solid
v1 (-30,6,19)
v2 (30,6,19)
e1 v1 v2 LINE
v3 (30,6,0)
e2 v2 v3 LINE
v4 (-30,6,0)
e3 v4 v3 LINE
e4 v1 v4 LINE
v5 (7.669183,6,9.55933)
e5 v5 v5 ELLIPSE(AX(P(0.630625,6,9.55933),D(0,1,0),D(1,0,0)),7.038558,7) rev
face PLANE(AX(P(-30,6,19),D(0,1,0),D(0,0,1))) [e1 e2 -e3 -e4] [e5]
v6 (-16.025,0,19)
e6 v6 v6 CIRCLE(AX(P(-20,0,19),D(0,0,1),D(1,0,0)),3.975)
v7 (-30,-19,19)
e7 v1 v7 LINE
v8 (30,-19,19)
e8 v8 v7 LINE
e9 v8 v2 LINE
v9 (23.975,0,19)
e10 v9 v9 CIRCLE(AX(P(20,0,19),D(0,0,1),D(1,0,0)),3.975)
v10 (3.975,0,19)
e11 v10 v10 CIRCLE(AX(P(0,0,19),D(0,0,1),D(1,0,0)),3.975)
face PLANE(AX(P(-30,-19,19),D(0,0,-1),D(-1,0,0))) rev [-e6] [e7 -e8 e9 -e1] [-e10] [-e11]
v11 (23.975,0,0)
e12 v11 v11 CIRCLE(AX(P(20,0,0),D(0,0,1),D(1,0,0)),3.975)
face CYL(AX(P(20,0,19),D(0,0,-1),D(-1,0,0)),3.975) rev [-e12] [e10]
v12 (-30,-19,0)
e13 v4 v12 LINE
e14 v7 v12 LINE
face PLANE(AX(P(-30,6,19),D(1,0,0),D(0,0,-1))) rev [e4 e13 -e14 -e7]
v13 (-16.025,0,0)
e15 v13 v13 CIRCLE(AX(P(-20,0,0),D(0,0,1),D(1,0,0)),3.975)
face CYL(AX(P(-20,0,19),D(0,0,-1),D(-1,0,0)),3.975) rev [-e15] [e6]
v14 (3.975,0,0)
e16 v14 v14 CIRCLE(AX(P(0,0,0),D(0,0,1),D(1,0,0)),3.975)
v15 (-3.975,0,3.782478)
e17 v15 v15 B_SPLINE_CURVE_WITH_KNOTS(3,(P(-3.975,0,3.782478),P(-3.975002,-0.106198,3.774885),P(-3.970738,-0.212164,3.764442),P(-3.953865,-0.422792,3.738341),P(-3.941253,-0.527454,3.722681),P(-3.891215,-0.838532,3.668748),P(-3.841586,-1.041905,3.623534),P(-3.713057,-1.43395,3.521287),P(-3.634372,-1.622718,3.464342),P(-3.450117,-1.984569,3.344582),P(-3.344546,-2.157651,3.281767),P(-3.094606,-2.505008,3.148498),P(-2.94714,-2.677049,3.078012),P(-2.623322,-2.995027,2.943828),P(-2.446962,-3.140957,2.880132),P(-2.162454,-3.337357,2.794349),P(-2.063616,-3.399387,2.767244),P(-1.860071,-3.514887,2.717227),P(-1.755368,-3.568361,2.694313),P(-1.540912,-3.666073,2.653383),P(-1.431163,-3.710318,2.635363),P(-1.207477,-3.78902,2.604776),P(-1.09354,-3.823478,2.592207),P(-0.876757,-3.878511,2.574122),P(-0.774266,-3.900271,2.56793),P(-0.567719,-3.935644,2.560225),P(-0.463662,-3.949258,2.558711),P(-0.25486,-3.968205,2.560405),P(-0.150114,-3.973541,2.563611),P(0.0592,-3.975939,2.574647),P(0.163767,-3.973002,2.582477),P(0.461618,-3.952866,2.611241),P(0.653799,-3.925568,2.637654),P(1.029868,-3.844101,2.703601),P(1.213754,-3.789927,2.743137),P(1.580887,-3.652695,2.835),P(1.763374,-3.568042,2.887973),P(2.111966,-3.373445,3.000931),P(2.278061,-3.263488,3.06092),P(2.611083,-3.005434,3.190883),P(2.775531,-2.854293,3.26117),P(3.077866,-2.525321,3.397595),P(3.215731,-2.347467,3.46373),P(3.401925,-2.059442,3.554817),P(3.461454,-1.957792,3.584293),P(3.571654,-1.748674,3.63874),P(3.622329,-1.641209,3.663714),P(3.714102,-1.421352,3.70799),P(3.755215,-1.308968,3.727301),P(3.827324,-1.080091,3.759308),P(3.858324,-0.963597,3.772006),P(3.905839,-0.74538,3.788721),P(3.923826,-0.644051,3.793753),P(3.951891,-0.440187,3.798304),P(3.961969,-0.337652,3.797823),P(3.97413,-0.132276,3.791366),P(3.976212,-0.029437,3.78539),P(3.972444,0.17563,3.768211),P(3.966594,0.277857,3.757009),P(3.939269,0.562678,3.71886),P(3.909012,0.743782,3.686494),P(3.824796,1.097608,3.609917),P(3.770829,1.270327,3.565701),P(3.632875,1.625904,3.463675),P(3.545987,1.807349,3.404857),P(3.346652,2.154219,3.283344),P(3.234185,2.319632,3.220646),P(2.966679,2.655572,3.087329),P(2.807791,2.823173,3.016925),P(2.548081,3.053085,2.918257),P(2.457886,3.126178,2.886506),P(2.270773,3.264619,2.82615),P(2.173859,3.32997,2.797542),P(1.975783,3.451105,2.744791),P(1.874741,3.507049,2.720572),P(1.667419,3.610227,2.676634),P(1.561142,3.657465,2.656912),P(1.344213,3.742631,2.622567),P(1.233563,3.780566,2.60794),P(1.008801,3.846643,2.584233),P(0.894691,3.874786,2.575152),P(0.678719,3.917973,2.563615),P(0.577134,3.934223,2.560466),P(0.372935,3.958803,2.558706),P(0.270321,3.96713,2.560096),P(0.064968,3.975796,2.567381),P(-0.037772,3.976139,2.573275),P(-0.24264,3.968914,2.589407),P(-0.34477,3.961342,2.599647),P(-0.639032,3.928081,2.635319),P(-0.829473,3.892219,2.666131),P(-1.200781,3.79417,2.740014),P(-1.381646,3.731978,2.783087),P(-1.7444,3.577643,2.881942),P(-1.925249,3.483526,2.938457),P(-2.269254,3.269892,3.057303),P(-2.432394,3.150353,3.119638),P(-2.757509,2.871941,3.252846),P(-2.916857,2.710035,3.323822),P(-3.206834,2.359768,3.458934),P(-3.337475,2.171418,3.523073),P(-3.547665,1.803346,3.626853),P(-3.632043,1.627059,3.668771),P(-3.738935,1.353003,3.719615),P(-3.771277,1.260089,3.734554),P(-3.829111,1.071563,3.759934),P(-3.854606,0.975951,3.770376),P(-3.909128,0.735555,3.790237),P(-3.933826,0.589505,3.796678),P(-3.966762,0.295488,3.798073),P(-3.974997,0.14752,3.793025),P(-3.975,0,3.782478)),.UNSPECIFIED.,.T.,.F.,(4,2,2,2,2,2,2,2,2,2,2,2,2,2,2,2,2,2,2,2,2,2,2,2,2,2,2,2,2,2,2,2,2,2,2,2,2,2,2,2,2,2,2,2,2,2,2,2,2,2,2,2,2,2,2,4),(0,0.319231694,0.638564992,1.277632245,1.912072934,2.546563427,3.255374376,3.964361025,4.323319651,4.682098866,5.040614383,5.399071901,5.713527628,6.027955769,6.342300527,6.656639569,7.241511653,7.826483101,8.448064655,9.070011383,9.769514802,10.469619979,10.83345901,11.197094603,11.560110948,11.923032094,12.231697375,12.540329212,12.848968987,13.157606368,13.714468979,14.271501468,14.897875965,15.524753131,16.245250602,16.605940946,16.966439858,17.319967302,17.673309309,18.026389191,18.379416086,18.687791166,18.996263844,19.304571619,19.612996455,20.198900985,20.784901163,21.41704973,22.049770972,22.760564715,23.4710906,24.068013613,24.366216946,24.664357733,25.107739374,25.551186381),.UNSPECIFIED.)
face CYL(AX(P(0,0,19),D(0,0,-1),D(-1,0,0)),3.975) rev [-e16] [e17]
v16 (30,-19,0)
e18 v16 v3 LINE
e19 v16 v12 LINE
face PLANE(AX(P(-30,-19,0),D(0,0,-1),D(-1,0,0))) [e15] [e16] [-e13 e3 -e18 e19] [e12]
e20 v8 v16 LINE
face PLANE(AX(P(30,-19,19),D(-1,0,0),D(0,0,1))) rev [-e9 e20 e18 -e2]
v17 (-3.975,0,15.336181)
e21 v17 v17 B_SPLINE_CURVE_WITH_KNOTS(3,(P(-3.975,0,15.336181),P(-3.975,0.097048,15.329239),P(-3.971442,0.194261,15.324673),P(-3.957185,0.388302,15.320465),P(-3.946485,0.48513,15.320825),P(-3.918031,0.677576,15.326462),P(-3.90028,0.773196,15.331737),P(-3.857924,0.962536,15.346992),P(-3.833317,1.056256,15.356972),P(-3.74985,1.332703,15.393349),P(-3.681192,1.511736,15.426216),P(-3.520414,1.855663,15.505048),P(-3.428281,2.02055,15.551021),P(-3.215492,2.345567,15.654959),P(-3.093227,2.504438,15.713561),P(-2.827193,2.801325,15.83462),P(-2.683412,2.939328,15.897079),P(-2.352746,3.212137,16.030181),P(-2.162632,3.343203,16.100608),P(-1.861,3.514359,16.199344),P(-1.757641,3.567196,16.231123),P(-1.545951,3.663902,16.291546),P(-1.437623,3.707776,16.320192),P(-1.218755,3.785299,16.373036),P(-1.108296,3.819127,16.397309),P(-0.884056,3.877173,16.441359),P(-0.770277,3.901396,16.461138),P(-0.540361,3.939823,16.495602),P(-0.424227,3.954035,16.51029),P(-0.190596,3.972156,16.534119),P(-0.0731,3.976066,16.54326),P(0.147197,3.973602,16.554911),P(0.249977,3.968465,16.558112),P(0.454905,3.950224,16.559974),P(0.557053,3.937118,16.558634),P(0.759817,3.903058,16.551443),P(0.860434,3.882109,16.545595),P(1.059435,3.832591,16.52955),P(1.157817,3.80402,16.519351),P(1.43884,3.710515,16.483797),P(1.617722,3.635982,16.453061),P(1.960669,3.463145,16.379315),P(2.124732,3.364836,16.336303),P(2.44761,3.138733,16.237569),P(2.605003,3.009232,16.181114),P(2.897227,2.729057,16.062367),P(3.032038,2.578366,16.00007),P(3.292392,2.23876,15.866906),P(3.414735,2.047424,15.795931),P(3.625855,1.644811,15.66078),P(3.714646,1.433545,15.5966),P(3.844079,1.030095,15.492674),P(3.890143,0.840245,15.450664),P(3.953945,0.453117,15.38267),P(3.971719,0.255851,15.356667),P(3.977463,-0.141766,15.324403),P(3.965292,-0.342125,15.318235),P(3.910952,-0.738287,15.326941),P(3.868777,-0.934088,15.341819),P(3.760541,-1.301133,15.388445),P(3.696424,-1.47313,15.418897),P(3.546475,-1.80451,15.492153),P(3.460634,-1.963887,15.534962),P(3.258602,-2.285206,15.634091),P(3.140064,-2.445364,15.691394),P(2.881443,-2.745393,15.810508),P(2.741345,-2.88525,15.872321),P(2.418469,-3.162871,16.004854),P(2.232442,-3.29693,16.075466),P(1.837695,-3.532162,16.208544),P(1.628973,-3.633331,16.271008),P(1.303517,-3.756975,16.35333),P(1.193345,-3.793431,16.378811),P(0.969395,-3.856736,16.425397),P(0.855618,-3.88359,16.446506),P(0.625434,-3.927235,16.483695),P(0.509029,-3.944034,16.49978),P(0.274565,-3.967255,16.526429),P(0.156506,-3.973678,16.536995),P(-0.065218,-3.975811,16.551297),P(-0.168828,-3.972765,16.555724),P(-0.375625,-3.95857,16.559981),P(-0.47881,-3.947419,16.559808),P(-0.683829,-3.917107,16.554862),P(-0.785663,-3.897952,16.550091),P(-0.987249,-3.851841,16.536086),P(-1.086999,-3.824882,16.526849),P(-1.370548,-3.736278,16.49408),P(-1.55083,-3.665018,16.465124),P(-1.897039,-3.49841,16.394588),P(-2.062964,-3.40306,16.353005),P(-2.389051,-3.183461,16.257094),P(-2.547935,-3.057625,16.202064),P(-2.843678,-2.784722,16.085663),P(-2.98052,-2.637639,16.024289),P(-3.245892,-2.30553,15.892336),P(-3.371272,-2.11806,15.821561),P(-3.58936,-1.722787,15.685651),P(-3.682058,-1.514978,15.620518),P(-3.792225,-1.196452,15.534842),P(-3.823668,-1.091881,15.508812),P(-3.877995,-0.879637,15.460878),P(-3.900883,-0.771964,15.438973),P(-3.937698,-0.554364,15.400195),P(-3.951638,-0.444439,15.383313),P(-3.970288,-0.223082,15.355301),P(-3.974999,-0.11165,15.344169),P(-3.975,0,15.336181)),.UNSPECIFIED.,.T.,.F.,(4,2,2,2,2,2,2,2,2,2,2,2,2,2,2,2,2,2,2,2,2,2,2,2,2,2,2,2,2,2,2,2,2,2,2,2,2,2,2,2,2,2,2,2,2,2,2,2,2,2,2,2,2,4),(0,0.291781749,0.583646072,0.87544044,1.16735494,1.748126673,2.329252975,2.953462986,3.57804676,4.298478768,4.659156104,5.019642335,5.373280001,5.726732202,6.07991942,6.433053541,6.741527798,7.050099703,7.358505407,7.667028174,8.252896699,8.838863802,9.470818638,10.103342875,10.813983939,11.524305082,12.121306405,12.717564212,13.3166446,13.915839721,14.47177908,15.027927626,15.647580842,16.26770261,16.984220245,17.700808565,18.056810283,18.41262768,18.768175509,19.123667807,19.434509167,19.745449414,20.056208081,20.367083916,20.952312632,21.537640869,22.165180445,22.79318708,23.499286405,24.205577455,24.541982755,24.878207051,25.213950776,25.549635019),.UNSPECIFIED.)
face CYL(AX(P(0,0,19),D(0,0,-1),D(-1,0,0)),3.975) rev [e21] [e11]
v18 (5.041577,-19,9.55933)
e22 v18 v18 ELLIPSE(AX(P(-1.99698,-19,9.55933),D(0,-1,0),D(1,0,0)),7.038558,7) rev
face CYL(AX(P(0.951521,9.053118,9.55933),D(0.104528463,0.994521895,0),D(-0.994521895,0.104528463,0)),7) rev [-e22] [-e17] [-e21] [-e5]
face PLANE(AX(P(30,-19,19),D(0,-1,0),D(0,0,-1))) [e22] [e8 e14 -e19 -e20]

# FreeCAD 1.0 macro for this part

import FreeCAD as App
import Part
import Sketcher

doc = App.newDocument("Part")
body = doc.addObject("PartDesign::Body", "Body")

# Sketch on XY plane
sketch1 = doc.addObject("Sketcher::SketchObject", "Sketch")
body.addObject(sketch1)
sketch1.AttachmentSupport = (doc.XY_Plane, [""])
sketch1.MapMode = "FlatFace"
sketch1.addGeometry(Part.LineSegment(App.Vector(-30, 6, 0), App.Vector(-30, -19, 0)), False)
sketch1.addGeometry(Part.LineSegment(App.Vector(-30, -19, 0), App.Vector(30, -19, 0)), False)
sketch1.addGeometry(Part.LineSegment(App.Vector(30, -19, 0), App.Vector(30, 6, 0)), False)
sketch1.addGeometry(Part.LineSegment(App.Vector(30, 6, 0), App.Vector(-30, 6, 0)), False)
sketch1.addGeometry(Part.Circle(App.Vector(-20, 0, 0), App.Vector(0, 0, 1), 4), False)
sketch1.addGeometry(Part.Circle(App.Vector(0, 0, 0), App.Vector(0, 0, 1), 4), False)
sketch1.addGeometry(Part.Circle(App.Vector(20, 0, 0), App.Vector(0, 0, 1), 4), False)
sketch1.addConstraint(Sketcher.Constraint("Coincident", 0, 2, 1, 1))
sketch1.addConstraint(Sketcher.Constraint("Coincident", 1, 2, 2, 1))
sketch1.addConstraint(Sketcher.Constraint("Coincident", 2, 2, 3, 1))
sketch1.addConstraint(Sketcher.Constraint("Coincident", 3, 2, 0, 1))
sketch1.addConstraint(Sketcher.Constraint("Vertical", 0))
sketch1.addConstraint(Sketcher.Constraint("Horizontal", 1))
sketch1.addConstraint(Sketcher.Constraint("Vertical", 2))
sketch1.addConstraint(Sketcher.Constraint("Horizontal", 3))
sketch1.addConstraint(Sketcher.Constraint("Coincident", 5, 3, -1, 1))
sketch1.addConstraint(Sketcher.Constraint("Equal", 4, 5))
sketch1.addConstraint(Sketcher.Constraint("Equal", 5, 6))
sketch1.addConstraint(Sketcher.Constraint("Symmetric", 4, 3, 6, 3, -1, 1))
sketch1.addConstraint(Sketcher.Constraint("PointOnObject", 4, 3, -1))
sketch1.addConstraint(Sketcher.Constraint("Diameter", 4, 7.95))
sketch1.addConstraint(Sketcher.Constraint("DistanceX", 1, 1, 1, 2, 60.0))
sketch1.addConstraint(Sketcher.Constraint("DistanceY", 0, 2, 0, 1, 25.0))
sketch1.addConstraint(Sketcher.Constraint("DistanceX", 4, 3, -1, 1, 20.0))
sketch1.addConstraint(Sketcher.Constraint("DistanceX", 0, 2, -1, 1, 30.0))
sketch1.addConstraint(Sketcher.Constraint("DistanceY", 0, 2, -1, 1, 19.0))
pad1 = doc.addObject("PartDesign::Pad", "Pad")
body.addObject(pad1)
pad1.Profile = sketch1
pad1.Length = 19

# Sketch on an angled plane
sketch2 = doc.addObject("Sketcher::SketchObject", "Sketch001")
body.addObject(sketch2)
sketch2.Placement = App.Placement(App.Vector(0, 0, 0), App.Rotation(App.Vector(0, 0, -1), App.Vector(0.104528463, 0.994521895, 0), App.Vector(0.994521895, -0.104528463, 0), "ZXY"))
sketch2.addGeometry(Part.LineSegment(App.Vector(-10, 10, 0), App.Vector(-10, -24, 0)), False)
sketch2.addGeometry(Part.LineSegment(App.Vector(-10, -24, 0), App.Vector(-3, -24, 0)), False)
sketch2.addGeometry(Part.LineSegment(App.Vector(-3, -24, 0), App.Vector(-3, 10, 0)), False)
sketch2.addGeometry(Part.LineSegment(App.Vector(-3, 10, 0), App.Vector(-10, 10, 0)), False)
sketch2.addGeometry(Part.LineSegment(App.Vector(-10, 10, 0), App.Vector(-10, -24, 0)), True)  # axis
sketch2.addConstraint(Sketcher.Constraint("Coincident", 0, 2, 1, 1))
sketch2.addConstraint(Sketcher.Constraint("Coincident", 1, 2, 2, 1))
sketch2.addConstraint(Sketcher.Constraint("Coincident", 2, 2, 3, 1))
sketch2.addConstraint(Sketcher.Constraint("Coincident", 3, 2, 0, 1))
sketch2.addConstraint(Sketcher.Constraint("Vertical", 0))
sketch2.addConstraint(Sketcher.Constraint("Horizontal", 1))
sketch2.addConstraint(Sketcher.Constraint("Vertical", 2))
sketch2.addConstraint(Sketcher.Constraint("Horizontal", 3))
sketch2.addConstraint(Sketcher.Constraint("Vertical", 4))
sketch2.addConstraint(Sketcher.Constraint("Coincident", 4, 1, 3, 2))
sketch2.addConstraint(Sketcher.Constraint("Horizontal", 1, 2, 4, 2))
sketch2.addConstraint(Sketcher.Constraint("DistanceX", 1, 1, 1, 2, 7.0))
sketch2.addConstraint(Sketcher.Constraint("DistanceY", 0, 2, -1, 1, 24.0))
sketch2.addConstraint(Sketcher.Constraint("DistanceY", 0, 2, 0, 1, 34.447812))
sketch2.addConstraint(Sketcher.Constraint("DistanceX", 0, 2, -1, 1, 9.55933))
groove = doc.addObject("PartDesign::Groove", "Groove")
body.addObject(groove)
groove.Profile = sketch2
groove.ReferenceAxis = (sketch2, ["Axis0"])
groove.Angle = 360

doc.recompute()
